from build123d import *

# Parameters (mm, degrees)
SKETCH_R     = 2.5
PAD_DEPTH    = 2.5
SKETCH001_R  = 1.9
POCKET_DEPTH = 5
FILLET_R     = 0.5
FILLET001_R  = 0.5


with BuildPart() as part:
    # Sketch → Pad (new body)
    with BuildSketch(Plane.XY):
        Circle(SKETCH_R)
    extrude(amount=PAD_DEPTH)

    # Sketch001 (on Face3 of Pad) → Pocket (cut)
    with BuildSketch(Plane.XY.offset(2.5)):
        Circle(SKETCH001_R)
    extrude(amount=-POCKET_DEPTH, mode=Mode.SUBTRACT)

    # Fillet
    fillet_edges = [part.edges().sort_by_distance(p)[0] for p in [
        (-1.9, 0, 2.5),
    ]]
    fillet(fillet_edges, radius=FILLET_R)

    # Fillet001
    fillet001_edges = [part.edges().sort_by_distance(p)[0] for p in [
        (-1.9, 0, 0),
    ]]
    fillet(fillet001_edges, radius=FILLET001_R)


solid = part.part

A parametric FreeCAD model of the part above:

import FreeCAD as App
import Part
import Sketcher

V = App.Vector


def edges_at(feature, points):
    """Names of the edges that pass closest to the given points."""
    edges = feature.Shape.Edges
    near = lambda p: min(range(len(edges)), key=lambda i: edges[i].distToShape(Part.Vertex(*p))[0])
    return sorted({f"Edge{near(p) + 1}" for p in points})

doc = App.newDocument("Part")
body = doc.addObject("PartDesign::Body", "Body")

# Sketch on XY plane
sketch1 = doc.addObject("Sketcher::SketchObject", "Sketch")
body.addObject(sketch1)
sketch1.AttachmentSupport = (doc.XY_Plane, [""])
sketch1.MapMode = "FlatFace"
sketch1.addGeometry(Part.Circle(V(0, 0, 0), V(0, 0, 1), 2.5), False)
sketch1.addConstraint([
    Sketcher.Constraint("Coincident", 0, 3, -1, 1),
    Sketcher.Constraint("Diameter", 0, 5.0),
])
pad1 = doc.addObject("PartDesign::Pad", "Pad")
body.addObject(pad1)
pad1.Profile = sketch1
pad1.Length = 2.5

# Sketch on XY plane
sketch2 = doc.addObject("Sketcher::SketchObject", "Sketch001")
body.addObject(sketch2)
sketch2.AttachmentSupport = (doc.XY_Plane, [""])
sketch2.MapMode = "FlatFace"
sketch2.AttachmentOffset = App.Placement(V(0, 0, 2.5), App.Rotation())
sketch2.addGeometry(Part.Circle(V(0, 0, 0), V(0, 0, 1), 1.9), False)
sketch2.addConstraint([
    Sketcher.Constraint("Coincident", 0, 3, -1, 1),
    Sketcher.Constraint("Diameter", 0, 3.8),
])
pocket1 = doc.addObject("PartDesign::Pocket", "Pocket")
body.addObject(pocket1)
pocket1.Profile = sketch2
pocket1.Length = 5
doc.recompute()

fillet = doc.addObject("PartDesign::Fillet", "Fillet")
body.addObject(fillet)
fillet.Base = (pocket1, edges_at(pocket1, [(-1.9, 0, 2.5)]))
fillet.Radius = 0.5
doc.recompute()

fillet2 = doc.addObject("PartDesign::Fillet", "Fillet001")
body.addObject(fillet2)
fillet2.Base = (fillet, edges_at(fillet, [(-1.9, 0, 0)]))
fillet2.Radius = 0.5

doc.recompute()
